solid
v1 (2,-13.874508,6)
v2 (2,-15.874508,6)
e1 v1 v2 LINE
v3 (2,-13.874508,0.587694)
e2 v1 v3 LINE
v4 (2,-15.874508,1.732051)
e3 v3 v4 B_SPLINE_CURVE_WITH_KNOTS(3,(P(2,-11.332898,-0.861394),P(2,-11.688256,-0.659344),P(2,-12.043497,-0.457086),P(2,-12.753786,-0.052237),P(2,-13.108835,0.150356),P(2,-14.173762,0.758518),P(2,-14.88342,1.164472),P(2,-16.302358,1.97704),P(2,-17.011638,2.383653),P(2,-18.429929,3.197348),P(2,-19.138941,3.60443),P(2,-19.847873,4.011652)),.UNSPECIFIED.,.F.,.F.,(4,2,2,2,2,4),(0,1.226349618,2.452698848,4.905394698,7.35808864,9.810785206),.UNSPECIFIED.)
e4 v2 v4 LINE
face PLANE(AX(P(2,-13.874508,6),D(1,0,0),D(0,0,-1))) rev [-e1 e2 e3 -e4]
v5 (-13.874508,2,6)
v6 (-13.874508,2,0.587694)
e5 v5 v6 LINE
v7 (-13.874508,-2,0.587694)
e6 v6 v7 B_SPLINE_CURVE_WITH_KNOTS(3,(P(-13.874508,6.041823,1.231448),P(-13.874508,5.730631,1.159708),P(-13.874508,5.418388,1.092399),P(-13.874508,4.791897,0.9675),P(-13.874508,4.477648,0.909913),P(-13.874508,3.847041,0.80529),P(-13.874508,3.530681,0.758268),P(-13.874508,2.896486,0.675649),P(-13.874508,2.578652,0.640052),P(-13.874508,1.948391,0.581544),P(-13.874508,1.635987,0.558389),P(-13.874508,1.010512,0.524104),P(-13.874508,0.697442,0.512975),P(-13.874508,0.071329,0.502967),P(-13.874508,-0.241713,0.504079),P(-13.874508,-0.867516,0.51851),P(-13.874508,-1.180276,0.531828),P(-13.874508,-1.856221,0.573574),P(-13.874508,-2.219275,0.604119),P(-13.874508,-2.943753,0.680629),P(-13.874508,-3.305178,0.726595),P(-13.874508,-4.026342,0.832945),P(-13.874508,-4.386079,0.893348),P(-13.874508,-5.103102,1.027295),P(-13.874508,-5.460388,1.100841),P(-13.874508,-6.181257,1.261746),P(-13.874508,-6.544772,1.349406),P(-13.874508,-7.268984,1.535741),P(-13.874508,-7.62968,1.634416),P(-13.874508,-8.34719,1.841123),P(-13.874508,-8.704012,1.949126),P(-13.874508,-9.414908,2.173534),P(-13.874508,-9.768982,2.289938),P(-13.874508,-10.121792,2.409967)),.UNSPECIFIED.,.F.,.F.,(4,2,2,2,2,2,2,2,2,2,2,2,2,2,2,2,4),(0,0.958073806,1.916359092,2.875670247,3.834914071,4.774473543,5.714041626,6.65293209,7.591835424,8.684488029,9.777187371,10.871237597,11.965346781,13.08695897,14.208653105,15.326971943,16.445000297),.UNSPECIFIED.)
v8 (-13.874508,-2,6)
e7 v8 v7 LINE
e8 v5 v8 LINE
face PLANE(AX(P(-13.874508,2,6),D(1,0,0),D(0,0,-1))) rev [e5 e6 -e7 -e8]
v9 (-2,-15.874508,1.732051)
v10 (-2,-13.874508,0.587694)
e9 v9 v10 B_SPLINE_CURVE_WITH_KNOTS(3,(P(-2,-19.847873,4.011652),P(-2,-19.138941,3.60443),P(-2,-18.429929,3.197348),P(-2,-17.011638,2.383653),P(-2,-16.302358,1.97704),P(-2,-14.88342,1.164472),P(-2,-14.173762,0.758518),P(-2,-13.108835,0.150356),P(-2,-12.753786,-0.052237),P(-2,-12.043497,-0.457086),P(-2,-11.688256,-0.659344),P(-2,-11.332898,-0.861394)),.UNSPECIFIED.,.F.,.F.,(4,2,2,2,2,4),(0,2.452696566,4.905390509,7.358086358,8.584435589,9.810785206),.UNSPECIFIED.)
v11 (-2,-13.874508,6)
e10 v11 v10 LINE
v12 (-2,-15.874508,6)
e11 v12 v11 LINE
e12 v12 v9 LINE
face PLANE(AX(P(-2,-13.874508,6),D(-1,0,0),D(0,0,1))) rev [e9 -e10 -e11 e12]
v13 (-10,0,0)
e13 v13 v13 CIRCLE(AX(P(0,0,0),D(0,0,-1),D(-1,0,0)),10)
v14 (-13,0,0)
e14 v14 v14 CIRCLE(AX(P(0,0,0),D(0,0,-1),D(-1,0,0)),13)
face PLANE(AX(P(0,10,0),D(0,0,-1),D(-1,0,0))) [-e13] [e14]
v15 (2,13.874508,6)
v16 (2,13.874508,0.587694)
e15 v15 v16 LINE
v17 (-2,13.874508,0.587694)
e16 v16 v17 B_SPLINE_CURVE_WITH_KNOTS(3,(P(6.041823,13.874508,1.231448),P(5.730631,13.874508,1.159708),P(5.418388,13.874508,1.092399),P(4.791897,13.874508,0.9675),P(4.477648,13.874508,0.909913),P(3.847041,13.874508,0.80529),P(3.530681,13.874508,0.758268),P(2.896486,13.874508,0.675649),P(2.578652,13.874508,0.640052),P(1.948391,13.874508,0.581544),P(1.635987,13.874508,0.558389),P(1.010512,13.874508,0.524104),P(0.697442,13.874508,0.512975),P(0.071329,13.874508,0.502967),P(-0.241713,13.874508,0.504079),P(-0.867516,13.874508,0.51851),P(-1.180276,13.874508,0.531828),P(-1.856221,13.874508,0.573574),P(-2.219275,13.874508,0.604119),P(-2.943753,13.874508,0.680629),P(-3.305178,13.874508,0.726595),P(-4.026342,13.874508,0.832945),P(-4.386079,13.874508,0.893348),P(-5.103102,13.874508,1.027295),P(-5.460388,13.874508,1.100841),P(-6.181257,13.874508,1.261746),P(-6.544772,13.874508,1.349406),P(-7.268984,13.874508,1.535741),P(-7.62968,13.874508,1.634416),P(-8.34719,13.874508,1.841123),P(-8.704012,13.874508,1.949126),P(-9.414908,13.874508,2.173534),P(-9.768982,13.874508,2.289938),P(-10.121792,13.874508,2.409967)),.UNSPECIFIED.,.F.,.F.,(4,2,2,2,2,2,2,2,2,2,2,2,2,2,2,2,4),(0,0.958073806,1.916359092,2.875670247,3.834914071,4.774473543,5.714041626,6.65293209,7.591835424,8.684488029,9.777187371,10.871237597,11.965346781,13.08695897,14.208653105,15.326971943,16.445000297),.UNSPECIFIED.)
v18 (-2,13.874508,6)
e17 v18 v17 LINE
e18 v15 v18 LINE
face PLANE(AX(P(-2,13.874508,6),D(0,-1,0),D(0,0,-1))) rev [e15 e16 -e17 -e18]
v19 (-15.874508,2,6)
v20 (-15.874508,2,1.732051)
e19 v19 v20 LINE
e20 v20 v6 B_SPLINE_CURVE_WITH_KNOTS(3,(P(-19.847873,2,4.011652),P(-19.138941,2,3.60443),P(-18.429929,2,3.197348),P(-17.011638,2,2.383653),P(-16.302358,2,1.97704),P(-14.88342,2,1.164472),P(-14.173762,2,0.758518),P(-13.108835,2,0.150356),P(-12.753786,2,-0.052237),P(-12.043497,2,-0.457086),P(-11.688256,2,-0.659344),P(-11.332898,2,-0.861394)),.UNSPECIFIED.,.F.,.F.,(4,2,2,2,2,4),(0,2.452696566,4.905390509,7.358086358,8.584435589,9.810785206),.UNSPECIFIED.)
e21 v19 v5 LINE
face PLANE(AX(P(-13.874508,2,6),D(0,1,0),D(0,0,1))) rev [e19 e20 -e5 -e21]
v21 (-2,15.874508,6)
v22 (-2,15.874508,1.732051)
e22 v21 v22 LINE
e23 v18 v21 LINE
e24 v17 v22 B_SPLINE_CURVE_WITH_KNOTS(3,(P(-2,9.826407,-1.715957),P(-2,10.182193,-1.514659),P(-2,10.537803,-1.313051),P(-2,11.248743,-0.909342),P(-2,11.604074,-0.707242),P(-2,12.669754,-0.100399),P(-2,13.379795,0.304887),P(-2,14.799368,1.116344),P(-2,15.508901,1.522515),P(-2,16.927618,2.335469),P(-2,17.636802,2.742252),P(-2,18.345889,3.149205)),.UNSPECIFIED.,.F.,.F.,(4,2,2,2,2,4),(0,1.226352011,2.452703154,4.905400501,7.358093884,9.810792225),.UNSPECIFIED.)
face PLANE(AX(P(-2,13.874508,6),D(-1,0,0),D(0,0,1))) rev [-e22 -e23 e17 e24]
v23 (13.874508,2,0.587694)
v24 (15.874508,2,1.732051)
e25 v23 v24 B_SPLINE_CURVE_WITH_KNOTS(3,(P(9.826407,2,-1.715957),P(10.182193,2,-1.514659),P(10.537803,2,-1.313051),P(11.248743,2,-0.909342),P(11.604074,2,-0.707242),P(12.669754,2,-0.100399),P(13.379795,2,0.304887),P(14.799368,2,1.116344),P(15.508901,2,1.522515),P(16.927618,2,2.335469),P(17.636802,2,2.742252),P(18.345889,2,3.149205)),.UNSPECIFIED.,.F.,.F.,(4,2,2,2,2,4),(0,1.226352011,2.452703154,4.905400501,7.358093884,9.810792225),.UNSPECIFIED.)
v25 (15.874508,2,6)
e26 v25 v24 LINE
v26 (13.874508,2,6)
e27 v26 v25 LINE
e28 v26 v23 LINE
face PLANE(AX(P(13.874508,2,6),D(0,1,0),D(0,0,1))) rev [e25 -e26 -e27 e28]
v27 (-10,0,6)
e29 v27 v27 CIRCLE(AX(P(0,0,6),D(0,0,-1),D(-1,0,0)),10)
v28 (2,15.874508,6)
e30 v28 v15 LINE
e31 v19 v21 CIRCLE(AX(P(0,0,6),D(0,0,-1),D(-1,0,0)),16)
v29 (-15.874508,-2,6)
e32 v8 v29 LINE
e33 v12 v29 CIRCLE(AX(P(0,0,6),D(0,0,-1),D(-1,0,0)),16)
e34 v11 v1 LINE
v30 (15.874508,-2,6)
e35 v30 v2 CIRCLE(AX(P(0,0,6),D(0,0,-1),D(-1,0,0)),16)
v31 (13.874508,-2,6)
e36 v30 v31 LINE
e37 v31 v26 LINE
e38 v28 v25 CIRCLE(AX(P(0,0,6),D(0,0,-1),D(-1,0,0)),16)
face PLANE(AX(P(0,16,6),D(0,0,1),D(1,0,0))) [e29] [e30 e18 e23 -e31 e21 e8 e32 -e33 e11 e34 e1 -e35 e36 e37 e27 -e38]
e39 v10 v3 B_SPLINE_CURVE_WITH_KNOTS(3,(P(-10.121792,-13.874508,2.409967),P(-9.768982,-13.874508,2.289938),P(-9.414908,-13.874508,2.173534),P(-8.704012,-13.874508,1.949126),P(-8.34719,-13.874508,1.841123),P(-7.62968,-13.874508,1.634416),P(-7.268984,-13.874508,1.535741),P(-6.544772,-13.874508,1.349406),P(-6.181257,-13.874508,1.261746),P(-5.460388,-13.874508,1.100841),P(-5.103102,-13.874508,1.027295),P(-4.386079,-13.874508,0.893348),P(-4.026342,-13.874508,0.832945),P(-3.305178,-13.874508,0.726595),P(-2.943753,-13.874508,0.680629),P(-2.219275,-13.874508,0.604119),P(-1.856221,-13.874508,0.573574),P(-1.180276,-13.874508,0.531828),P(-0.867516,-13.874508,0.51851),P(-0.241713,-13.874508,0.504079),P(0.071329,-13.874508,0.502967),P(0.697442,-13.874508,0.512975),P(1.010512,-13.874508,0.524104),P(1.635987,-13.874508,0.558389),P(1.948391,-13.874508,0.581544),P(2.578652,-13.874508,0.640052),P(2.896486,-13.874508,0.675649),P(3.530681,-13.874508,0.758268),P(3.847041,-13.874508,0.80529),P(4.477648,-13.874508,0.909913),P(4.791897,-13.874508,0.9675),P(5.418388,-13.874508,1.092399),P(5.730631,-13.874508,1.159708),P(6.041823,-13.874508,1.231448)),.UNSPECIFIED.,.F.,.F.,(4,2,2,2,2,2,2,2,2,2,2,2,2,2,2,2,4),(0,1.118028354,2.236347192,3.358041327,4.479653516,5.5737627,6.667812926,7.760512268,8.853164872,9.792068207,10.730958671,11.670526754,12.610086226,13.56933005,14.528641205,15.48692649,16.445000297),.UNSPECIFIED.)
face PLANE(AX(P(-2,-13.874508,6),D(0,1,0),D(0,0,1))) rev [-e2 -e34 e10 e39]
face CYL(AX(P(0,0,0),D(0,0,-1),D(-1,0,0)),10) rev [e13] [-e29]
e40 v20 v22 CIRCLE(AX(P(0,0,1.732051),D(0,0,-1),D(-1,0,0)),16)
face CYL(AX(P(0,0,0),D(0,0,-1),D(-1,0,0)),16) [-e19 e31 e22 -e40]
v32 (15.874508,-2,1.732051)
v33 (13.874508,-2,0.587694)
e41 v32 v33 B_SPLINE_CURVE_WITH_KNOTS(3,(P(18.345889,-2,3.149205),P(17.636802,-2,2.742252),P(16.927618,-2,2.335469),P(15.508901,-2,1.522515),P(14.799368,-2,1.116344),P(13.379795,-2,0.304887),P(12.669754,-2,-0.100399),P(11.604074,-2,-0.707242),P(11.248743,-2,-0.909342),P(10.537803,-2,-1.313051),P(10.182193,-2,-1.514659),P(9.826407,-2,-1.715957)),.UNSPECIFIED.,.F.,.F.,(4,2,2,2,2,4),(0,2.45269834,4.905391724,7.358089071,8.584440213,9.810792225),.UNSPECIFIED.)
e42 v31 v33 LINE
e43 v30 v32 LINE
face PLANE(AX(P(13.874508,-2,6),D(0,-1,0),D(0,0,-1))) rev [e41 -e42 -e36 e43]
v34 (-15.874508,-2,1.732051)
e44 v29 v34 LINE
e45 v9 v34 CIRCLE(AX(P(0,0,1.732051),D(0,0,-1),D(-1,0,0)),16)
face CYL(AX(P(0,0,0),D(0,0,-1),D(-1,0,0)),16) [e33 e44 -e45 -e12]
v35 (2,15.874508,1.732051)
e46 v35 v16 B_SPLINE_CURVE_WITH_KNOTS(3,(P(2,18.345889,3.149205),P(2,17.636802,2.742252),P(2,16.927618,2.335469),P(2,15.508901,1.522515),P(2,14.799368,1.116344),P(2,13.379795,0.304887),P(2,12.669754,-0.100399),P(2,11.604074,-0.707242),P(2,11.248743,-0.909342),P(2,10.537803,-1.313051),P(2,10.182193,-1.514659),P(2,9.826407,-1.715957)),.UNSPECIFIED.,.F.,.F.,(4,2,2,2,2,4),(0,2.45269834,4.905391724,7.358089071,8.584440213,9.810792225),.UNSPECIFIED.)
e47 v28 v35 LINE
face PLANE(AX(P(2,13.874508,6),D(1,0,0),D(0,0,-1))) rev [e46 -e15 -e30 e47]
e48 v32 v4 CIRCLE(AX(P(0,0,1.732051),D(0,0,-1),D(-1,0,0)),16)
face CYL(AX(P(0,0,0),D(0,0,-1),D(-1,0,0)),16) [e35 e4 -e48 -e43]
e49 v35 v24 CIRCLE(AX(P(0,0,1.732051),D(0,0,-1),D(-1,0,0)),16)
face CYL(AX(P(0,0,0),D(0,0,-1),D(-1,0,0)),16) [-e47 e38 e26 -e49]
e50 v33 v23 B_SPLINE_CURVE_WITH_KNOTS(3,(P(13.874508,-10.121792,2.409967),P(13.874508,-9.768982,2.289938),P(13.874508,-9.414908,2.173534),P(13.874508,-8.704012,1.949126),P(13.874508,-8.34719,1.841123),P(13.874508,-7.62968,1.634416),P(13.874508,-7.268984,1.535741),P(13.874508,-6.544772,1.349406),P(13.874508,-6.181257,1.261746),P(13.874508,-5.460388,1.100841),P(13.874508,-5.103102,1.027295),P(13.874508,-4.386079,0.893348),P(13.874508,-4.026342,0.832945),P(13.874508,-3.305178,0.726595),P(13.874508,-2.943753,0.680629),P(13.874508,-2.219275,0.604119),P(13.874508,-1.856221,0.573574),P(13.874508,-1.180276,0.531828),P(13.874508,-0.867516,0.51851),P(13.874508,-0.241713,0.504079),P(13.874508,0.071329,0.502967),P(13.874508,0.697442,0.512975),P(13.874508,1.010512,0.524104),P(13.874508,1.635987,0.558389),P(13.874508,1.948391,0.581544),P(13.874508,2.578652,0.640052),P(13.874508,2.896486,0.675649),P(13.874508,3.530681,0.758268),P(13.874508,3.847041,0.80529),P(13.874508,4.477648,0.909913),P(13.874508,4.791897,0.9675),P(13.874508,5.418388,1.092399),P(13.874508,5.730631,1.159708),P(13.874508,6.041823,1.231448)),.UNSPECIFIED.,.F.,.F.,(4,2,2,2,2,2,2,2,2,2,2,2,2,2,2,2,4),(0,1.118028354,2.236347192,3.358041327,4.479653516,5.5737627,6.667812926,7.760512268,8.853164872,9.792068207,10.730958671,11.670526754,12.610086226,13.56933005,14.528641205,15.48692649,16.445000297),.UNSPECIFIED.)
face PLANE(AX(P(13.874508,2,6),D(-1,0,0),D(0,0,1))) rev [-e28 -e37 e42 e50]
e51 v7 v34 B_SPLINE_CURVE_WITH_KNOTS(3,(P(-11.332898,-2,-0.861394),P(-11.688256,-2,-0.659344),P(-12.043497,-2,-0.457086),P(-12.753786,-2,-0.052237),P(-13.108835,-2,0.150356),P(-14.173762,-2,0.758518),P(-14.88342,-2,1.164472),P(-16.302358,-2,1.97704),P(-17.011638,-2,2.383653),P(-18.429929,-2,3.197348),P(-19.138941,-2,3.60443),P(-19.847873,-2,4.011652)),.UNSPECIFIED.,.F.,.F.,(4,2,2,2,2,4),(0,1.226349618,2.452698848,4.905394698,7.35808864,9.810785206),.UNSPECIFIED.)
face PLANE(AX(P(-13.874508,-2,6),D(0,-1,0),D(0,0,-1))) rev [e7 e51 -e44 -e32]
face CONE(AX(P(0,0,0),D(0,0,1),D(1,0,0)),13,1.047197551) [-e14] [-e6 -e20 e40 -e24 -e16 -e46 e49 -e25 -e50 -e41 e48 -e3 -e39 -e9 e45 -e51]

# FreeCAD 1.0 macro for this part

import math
import FreeCAD as App
import Part
import Sketcher

V = App.Vector
Q = App.Units.Quantity


def add_polygon(sketch, points):
    """Adds a closed chain of lines whose ends are joined by coincident constraints."""
    first, n = sketch.GeometryCount, len(points)
    for a, b in zip(points, points[1:] + points[:1]):
        sketch.addGeometry(Part.LineSegment(App.Vector(*a, 0), App.Vector(*b, 0)), False)
    for i in range(n):
        sketch.addConstraint(Sketcher.Constraint("Coincident", first + i, 2, first + (i + 1) % n, 1))

doc = App.newDocument("Part")
body = doc.addObject("PartDesign::Body", "Body")

# Sketch on YZ plane
sketch1 = doc.addObject("Sketcher::SketchObject", "Sketch")
body.addObject(sketch1)
sketch1.AttachmentSupport = (doc.YZ_Plane, [""])
sketch1.MapMode = "FlatFace"
add_polygon(sketch1, [(10, 0), (13, 0), (16, 1.732051), (16, 6), (10, 6)])  # lines 0-4
sketch1.addConstraint([
    Sketcher.Constraint("Horizontal", 0),
    Sketcher.Constraint("Vertical", 2),
    Sketcher.Constraint("Horizontal", 3),
    Sketcher.Constraint("Vertical", 4),
    Sketcher.Constraint("PointOnObject", 0, 2, -1),
    Sketcher.Constraint("Equal", 3, 4),
    Sketcher.Constraint("DistanceX", 0, 1, 0, 2, Q("3 mm")),
    Sketcher.Constraint("DistanceX", 3, 2, 3, 1, Q("6 mm")),
    Sketcher.Constraint("Angle", 1, Q("30 deg")),
    Sketcher.Constraint("DistanceX", -1, 1, 0, 2, Q("13 mm")),
])
revolution = doc.addObject("PartDesign::Revolution", "Revolution")
body.addObject(revolution)
revolution.Profile = sketch1
revolution.ReferenceAxis = (sketch1, ["V_Axis"])
revolution.Angle = 360

# Sketch on XY plane
sketch2 = doc.addObject("Sketcher::SketchObject", "Sketch001")
body.addObject(sketch2)
sketch2.AttachmentSupport = (doc.XY_Plane, [""])
sketch2.MapMode = "FlatFace"
add_polygon(sketch2, [(-21.565, 21.565), (-21.565, -21.565), (21.565, -21.565), (21.565, 21.565)])  # lines 0-3
sketch2.addGeometry(Part.LineSegment(V(-2, 15.874508, 0), V(-2, 13.874508, 0)), False)  # 4
sketch2.addGeometry(Part.LineSegment(V(-2, 13.874508, 0), V(2, 13.874508, 0)), False)  # 5
sketch2.addGeometry(Part.LineSegment(V(2, 13.874508, 0), V(2, 15.874508, 0)), False)  # 6
sketch2.addGeometry(Part.ArcOfCircle(Part.Circle(V(0, 0, 0), V(0, 0, 1), 16), math.radians(7.180756), math.radians(82.819244)), False)  # 7
sketch2.addGeometry(Part.LineSegment(V(15.874508, 2, 0), V(13.874508, 2, 0)), False)  # 8
sketch2.addGeometry(Part.LineSegment(V(13.874508, 2, 0), V(13.874508, -2, 0)), False)  # 9
sketch2.addGeometry(Part.LineSegment(V(13.874508, -2, 0), V(15.874508, -2, 0)), False)  # 10
sketch2.addGeometry(Part.ArcOfCircle(Part.Circle(V(0, 0, 0), V(0, 0, 1), 16), math.radians(-82.819244), math.radians(-7.180756)), False)  # 11
sketch2.addGeometry(Part.LineSegment(V(2, -15.874508, 0), V(2, -13.874508, 0)), False)  # 12
sketch2.addGeometry(Part.LineSegment(V(2, -13.874508, 0), V(-2, -13.874508, 0)), False)  # 13
sketch2.addGeometry(Part.LineSegment(V(-2, -13.874508, 0), V(-2, -15.874508, 0)), False)  # 14
sketch2.addGeometry(Part.ArcOfCircle(Part.Circle(V(0, 0, 0), V(0, 0, 1), 16), math.radians(-172.819244), math.radians(-97.180756)), False)  # 15
sketch2.addGeometry(Part.LineSegment(V(-15.874508, -2, 0), V(-13.874508, -2, 0)), False)  # 16
sketch2.addGeometry(Part.LineSegment(V(-13.874508, -2, 0), V(-13.874508, 2, 0)), False)  # 17
sketch2.addGeometry(Part.LineSegment(V(-13.874508, 2, 0), V(-15.874508, 2, 0)), False)  # 18
sketch2.addGeometry(Part.ArcOfCircle(Part.Circle(V(0, 0, 0), V(0, 0, 1), 16), math.radians(97.180756), math.radians(172.819244)), False)  # 19
sketch2.addConstraint([
    Sketcher.Constraint("Coincident", 4, 2, 5, 1),
    Sketcher.Constraint("Coincident", 5, 2, 6, 1),
    Sketcher.Constraint("Coincident", 6, 2, 7, 2),
    Sketcher.Constraint("Coincident", 7, 1, 8, 1),
    Sketcher.Constraint("Coincident", 8, 2, 9, 1),
    Sketcher.Constraint("Coincident", 9, 2, 10, 1),
    Sketcher.Constraint("Coincident", 10, 2, 11, 2),
    Sketcher.Constraint("Coincident", 11, 1, 12, 1),
    Sketcher.Constraint("Coincident", 12, 2, 13, 1),
    Sketcher.Constraint("Coincident", 13, 2, 14, 1),
    Sketcher.Constraint("Coincident", 14, 2, 15, 2),
    Sketcher.Constraint("Coincident", 15, 1, 16, 1),
    Sketcher.Constraint("Coincident", 16, 2, 17, 1),
    Sketcher.Constraint("Coincident", 17, 2, 18, 1),
    Sketcher.Constraint("Coincident", 18, 2, 19, 2),
    Sketcher.Constraint("Coincident", 19, 1, 4, 1),
    Sketcher.Constraint("Vertical", 0),
    Sketcher.Constraint("Horizontal", 1),
    Sketcher.Constraint("Vertical", 2),
    Sketcher.Constraint("Horizontal", 3),
    Sketcher.Constraint("Vertical", 4),
    Sketcher.Constraint("Horizontal", 5),
    Sketcher.Constraint("Vertical", 6),
    Sketcher.Constraint("Horizontal", 8),
    Sketcher.Constraint("Vertical", 9),
    Sketcher.Constraint("Horizontal", 10),
    Sketcher.Constraint("Vertical", 12),
    Sketcher.Constraint("Horizontal", 13),
    Sketcher.Constraint("Vertical", 14),
    Sketcher.Constraint("Horizontal", 16),
    Sketcher.Constraint("Vertical", 17),
    Sketcher.Constraint("Horizontal", 18),
    Sketcher.Constraint("Coincident", 7, 3, -1, 1),
    Sketcher.Constraint("Coincident", 11, 3, -1, 1),
    Sketcher.Constraint("Coincident", 15, 3, -1, 1),
    Sketcher.Constraint("Coincident", 19, 3, -1, 1),
    Sketcher.Constraint("Equal", 7, 11),
    Sketcher.Constraint("Equal", 11, 15),
    Sketcher.Constraint("Equal", 15, 19),
    Sketcher.Constraint("Symmetric", 0, 2, 2, 2, -1, 1),
    Sketcher.Constraint("Symmetric", 4, 2, 12, 2, -1, 1),
    Sketcher.Constraint("Symmetric", 8, 2, 16, 2, -1, 1),
    Sketcher.Constraint("Horizontal", 11, 1, 14, 2),
    Sketcher.Constraint("Horizontal", 10, 2, 15, 1),
    Sketcher.Constraint("Horizontal", 8, 2, 17, 2),
    Sketcher.Constraint("Horizontal", 6, 2, 19, 1),
    Sketcher.Constraint("Equal", 3, 0),
    Sketcher.Constraint("Equal", 18, 4),
    Sketcher.Constraint("Equal", 13, 9),
    Sketcher.Constraint("Radius", 7, Q("16 mm")),
    Sketcher.Constraint("DistanceX", 5, 1, 5, 2, Q("4 mm")),
    Sketcher.Constraint("DistanceX", 8, 2, 8, 1, Q("2 mm")),
    Sketcher.Constraint("DistanceX", 1, 1, 1, 2, Q("43.13 mm")),
])
pocket1 = doc.addObject("PartDesign::Pocket", "Pocket")
body.addObject(pocket1)
pocket1.Profile = sketch2
pocket1.Type = "ThroughAll"
pocket1.Reversed = True

doc.recompute()
